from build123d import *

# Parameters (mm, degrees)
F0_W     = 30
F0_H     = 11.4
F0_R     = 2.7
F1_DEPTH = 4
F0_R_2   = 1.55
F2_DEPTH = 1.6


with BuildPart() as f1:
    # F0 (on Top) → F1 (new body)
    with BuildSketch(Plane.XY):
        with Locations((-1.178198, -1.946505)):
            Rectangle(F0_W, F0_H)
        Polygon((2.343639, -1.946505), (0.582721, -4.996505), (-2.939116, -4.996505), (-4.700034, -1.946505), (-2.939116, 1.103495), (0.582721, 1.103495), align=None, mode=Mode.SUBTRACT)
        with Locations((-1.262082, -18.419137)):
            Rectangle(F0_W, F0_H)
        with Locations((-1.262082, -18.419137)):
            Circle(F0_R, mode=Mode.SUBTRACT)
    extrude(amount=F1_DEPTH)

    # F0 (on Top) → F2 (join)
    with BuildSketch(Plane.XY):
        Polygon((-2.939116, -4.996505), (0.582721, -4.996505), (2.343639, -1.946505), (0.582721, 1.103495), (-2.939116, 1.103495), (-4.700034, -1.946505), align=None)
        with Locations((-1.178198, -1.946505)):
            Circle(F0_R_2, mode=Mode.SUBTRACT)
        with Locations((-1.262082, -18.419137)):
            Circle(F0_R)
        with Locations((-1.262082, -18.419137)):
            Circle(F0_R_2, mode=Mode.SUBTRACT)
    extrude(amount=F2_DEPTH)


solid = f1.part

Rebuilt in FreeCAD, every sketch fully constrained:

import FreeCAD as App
import Part
import Sketcher

V = App.Vector
Q = App.Units.Quantity

doc = App.newDocument("Part")
body = doc.addObject("PartDesign::Body", "Body")
body.AllowCompound = True

sketch1 = body.newObject("Sketcher::SketchObject", "Sketch")
sketch1.AttachmentSupport = (doc.getObject("XY_Plane"), [""])
sketch1.MapMode = "FlatFace"
sketch1.addGeometry([
    Part.LineSegment(V(-16.2, 3.8, 0), V(-16.2, -7.6, 0)),
    Part.LineSegment(V(-16.2, -7.6, 0), V(13.8, -7.6, 0)),
    Part.LineSegment(V(13.8, -7.6, 0), V(13.8, 3.8, 0)),
    Part.LineSegment(V(13.8, 3.8, 0), V(-16.2, 3.8, 0)),
    Part.LineSegment(V(0.6, 1.1, 0), V(2.3, -1.9, 0)),
    Part.LineSegment(V(2.3, -1.9, 0), V(0.6, -5, 0)),
    Part.LineSegment(V(0.6, -5, 0), V(-2.9, -5, 0)),
    Part.LineSegment(V(-2.9, -5, 0), V(-4.7, -1.9, 0)),
    Part.LineSegment(V(-4.7, -1.9, 0), V(-2.9, 1.1, 0)),
    Part.LineSegment(V(-2.9, 1.1, 0), V(0.6, 1.1, 0)),
    Part.LineSegment(V(-16.3, -12.7, 0), V(-16.3, -24.1, 0)),
    Part.LineSegment(V(-16.3, -24.1, 0), V(13.7, -24.1, 0)),
    Part.LineSegment(V(13.7, -24.1, 0), V(13.7, -12.7, 0)),
    Part.LineSegment(V(13.7, -12.7, 0), V(-16.3, -12.7, 0)),
    Part.Circle(V(-1.3, -18.4, 0), V(0, 0, 1), 2.7),
], False)
sketch1.addConstraint([
    Sketcher.Constraint("Coincident", 0, 2, 1, 1),
    Sketcher.Constraint("Coincident", 1, 2, 2, 1),
    Sketcher.Constraint("Coincident", 2, 2, 3, 1),
    Sketcher.Constraint("Coincident", 3, 2, 0, 1),
    Sketcher.Constraint("Coincident", 4, 2, 5, 1),
    Sketcher.Constraint("Coincident", 5, 2, 6, 1),
    Sketcher.Constraint("Coincident", 6, 2, 7, 1),
    Sketcher.Constraint("Coincident", 7, 2, 8, 1),
    Sketcher.Constraint("Coincident", 8, 2, 9, 1),
    Sketcher.Constraint("Coincident", 9, 2, 4, 1),
    Sketcher.Constraint("Coincident", 10, 2, 11, 1),
    Sketcher.Constraint("Coincident", 11, 2, 12, 1),
    Sketcher.Constraint("Coincident", 12, 2, 13, 1),
    Sketcher.Constraint("Coincident", 13, 2, 10, 1),
    Sketcher.Constraint("Vertical", 0),
    Sketcher.Constraint("Horizontal", 1),
    Sketcher.Constraint("Vertical", 2),
    Sketcher.Constraint("Horizontal", 3),
    Sketcher.Constraint("Horizontal", 6),
    Sketcher.Constraint("Horizontal", 9),
    Sketcher.Constraint("Vertical", 10),
    Sketcher.Constraint("Horizontal", 11),
    Sketcher.Constraint("Vertical", 12),
    Sketcher.Constraint("Horizontal", 13),
    Sketcher.Constraint("Parallel", 4, 7),
    Sketcher.Constraint("Parallel", 5, 8),
    Sketcher.Constraint("Horizontal", 4, 2, 7, 2),
    Sketcher.Constraint("Vertical", 6, 2, 8, 2),
    Sketcher.Constraint("Vertical", 5, 2, 9, 2),
    Sketcher.Constraint("Equal", 3, 11),
    Sketcher.Constraint("Equal", 2, 10),
    Sketcher.Constraint("Diameter", 14, Q("5.4 mm")),
    Sketcher.Constraint("DistanceX", 1, 1, 1, 2, Q("30 mm")),
    Sketcher.Constraint("Angle", 4, Q("-60.000005 deg")),
    Sketcher.Constraint("DistanceY", 0, 2, 0, 1, Q("11.4 mm")),
    Sketcher.Constraint("DistanceX", 10, 2, 14, 3, Q("15 mm")),
    Sketcher.Constraint("DistanceY", 1, 2, 4, 2, Q("5.7 mm")),
    Sketcher.Constraint("DistanceY", 6, 2, 8, 2, Q("6.1 mm")),
    Sketcher.Constraint("DistanceY", 10, 2, 14, 3, Q("5.7 mm")),
    Sketcher.Constraint("DistanceX", 6, 2, 6, 1, Q("3.521837 mm")),
    Sketcher.Constraint("DistanceX", 14, 3, -1, 1, Q("1.262082 mm")),
    Sketcher.Constraint("DistanceX", -1, 1, 4, 2, Q("2.343639 mm")),
    Sketcher.Constraint("DistanceY", 14, 3, 0, 2, Q("10.772632 mm")),
    Sketcher.Constraint("DistanceX", 5, 2, 1, 2, Q("13.239081 mm")),
    Sketcher.Constraint("DistanceY", 14, 3, -1, 1, Q("18.419137 mm")),
])
pad1 = body.newObject("PartDesign::Pad", "Pad")
pad1.Profile = sketch1
pad1.Length = 4

sketch2 = body.newObject("Sketcher::SketchObject", "Sketch001")
sketch2.AttachmentSupport = (doc.getObject("XY_Plane"), [""])
sketch2.MapMode = "FlatFace"
sketch2.addGeometry([
    Part.LineSegment(V(-2.9, -5, 0), V(0.6, -5, 0)),
    Part.LineSegment(V(0.6, -5, 0), V(2.3, -1.9, 0)),
    Part.LineSegment(V(2.3, -1.9, 0), V(0.6, 1.1, 0)),
    Part.LineSegment(V(0.6, 1.1, 0), V(-2.9, 1.1, 0)),
    Part.LineSegment(V(-2.9, 1.1, 0), V(-4.7, -1.9, 0)),
    Part.LineSegment(V(-4.7, -1.9, 0), V(-2.9, -5, 0)),
    Part.Circle(V(-1.2, -1.9, 0), V(0, 0, 1), 1.6),
    Part.Circle(V(-1.3, -18.4, 0), V(0, 0, 1), 2.7),
    Part.Circle(V(-1.3, -18.4, 0), V(0, 0, 1), 1.6),
], False)
sketch2.addConstraint([
    Sketcher.Constraint("Coincident", 0, 2, 1, 1),
    Sketcher.Constraint("Coincident", 1, 2, 2, 1),
    Sketcher.Constraint("Coincident", 2, 2, 3, 1),
    Sketcher.Constraint("Coincident", 3, 2, 4, 1),
    Sketcher.Constraint("Coincident", 4, 2, 5, 1),
    Sketcher.Constraint("Coincident", 5, 2, 0, 1),
    Sketcher.Constraint("Horizontal", 0),
    Sketcher.Constraint("Horizontal", 3),
    Sketcher.Constraint("Coincident", 8, 3, 7, 3),
    Sketcher.Constraint("Equal", 6, 8),
    Sketcher.Constraint("Parallel", 1, 4),
    Sketcher.Constraint("Parallel", 2, 5),
    Sketcher.Constraint("Horizontal", 6, 3, 1, 2),
    Sketcher.Constraint("Horizontal", 1, 2, 4, 2),
    Sketcher.Constraint("Vertical", 0, 2, 2, 2),
    Sketcher.Constraint("Vertical", 3, 2, 5, 2),
    Sketcher.Constraint("Diameter", 6, Q("3.1 mm")),
    Sketcher.Constraint("Diameter", 7, Q("5.4 mm")),
    Sketcher.Constraint("Angle", 1, Q("60.000005 deg")),
    Sketcher.Constraint("DistanceY", 0, 2, 2, 2, Q("6.1 mm")),
    Sketcher.Constraint("DistanceX", 6, 3, -1, 1, Q("1.178198 mm")),
    Sketcher.Constraint("DistanceX", 0, 1, 0, 2, Q("3.521837 mm")),
    Sketcher.Constraint("DistanceX", 7, 3, -1, 1, Q("1.262082 mm")),
    Sketcher.Constraint("DistanceX", -1, 1, 0, 2, Q("0.582721 mm")),
    Sketcher.Constraint("DistanceY", 7, 3, 2, 2, Q("19.522632 mm")),
    Sketcher.Constraint("DistanceY", 6, 3, -1, 1, Q("1.946505 mm")),
])
pad2 = body.newObject("PartDesign::Pad", "Pad001")
pad2.Profile = sketch2
pad2.Length = 1.6

doc.recompute()
